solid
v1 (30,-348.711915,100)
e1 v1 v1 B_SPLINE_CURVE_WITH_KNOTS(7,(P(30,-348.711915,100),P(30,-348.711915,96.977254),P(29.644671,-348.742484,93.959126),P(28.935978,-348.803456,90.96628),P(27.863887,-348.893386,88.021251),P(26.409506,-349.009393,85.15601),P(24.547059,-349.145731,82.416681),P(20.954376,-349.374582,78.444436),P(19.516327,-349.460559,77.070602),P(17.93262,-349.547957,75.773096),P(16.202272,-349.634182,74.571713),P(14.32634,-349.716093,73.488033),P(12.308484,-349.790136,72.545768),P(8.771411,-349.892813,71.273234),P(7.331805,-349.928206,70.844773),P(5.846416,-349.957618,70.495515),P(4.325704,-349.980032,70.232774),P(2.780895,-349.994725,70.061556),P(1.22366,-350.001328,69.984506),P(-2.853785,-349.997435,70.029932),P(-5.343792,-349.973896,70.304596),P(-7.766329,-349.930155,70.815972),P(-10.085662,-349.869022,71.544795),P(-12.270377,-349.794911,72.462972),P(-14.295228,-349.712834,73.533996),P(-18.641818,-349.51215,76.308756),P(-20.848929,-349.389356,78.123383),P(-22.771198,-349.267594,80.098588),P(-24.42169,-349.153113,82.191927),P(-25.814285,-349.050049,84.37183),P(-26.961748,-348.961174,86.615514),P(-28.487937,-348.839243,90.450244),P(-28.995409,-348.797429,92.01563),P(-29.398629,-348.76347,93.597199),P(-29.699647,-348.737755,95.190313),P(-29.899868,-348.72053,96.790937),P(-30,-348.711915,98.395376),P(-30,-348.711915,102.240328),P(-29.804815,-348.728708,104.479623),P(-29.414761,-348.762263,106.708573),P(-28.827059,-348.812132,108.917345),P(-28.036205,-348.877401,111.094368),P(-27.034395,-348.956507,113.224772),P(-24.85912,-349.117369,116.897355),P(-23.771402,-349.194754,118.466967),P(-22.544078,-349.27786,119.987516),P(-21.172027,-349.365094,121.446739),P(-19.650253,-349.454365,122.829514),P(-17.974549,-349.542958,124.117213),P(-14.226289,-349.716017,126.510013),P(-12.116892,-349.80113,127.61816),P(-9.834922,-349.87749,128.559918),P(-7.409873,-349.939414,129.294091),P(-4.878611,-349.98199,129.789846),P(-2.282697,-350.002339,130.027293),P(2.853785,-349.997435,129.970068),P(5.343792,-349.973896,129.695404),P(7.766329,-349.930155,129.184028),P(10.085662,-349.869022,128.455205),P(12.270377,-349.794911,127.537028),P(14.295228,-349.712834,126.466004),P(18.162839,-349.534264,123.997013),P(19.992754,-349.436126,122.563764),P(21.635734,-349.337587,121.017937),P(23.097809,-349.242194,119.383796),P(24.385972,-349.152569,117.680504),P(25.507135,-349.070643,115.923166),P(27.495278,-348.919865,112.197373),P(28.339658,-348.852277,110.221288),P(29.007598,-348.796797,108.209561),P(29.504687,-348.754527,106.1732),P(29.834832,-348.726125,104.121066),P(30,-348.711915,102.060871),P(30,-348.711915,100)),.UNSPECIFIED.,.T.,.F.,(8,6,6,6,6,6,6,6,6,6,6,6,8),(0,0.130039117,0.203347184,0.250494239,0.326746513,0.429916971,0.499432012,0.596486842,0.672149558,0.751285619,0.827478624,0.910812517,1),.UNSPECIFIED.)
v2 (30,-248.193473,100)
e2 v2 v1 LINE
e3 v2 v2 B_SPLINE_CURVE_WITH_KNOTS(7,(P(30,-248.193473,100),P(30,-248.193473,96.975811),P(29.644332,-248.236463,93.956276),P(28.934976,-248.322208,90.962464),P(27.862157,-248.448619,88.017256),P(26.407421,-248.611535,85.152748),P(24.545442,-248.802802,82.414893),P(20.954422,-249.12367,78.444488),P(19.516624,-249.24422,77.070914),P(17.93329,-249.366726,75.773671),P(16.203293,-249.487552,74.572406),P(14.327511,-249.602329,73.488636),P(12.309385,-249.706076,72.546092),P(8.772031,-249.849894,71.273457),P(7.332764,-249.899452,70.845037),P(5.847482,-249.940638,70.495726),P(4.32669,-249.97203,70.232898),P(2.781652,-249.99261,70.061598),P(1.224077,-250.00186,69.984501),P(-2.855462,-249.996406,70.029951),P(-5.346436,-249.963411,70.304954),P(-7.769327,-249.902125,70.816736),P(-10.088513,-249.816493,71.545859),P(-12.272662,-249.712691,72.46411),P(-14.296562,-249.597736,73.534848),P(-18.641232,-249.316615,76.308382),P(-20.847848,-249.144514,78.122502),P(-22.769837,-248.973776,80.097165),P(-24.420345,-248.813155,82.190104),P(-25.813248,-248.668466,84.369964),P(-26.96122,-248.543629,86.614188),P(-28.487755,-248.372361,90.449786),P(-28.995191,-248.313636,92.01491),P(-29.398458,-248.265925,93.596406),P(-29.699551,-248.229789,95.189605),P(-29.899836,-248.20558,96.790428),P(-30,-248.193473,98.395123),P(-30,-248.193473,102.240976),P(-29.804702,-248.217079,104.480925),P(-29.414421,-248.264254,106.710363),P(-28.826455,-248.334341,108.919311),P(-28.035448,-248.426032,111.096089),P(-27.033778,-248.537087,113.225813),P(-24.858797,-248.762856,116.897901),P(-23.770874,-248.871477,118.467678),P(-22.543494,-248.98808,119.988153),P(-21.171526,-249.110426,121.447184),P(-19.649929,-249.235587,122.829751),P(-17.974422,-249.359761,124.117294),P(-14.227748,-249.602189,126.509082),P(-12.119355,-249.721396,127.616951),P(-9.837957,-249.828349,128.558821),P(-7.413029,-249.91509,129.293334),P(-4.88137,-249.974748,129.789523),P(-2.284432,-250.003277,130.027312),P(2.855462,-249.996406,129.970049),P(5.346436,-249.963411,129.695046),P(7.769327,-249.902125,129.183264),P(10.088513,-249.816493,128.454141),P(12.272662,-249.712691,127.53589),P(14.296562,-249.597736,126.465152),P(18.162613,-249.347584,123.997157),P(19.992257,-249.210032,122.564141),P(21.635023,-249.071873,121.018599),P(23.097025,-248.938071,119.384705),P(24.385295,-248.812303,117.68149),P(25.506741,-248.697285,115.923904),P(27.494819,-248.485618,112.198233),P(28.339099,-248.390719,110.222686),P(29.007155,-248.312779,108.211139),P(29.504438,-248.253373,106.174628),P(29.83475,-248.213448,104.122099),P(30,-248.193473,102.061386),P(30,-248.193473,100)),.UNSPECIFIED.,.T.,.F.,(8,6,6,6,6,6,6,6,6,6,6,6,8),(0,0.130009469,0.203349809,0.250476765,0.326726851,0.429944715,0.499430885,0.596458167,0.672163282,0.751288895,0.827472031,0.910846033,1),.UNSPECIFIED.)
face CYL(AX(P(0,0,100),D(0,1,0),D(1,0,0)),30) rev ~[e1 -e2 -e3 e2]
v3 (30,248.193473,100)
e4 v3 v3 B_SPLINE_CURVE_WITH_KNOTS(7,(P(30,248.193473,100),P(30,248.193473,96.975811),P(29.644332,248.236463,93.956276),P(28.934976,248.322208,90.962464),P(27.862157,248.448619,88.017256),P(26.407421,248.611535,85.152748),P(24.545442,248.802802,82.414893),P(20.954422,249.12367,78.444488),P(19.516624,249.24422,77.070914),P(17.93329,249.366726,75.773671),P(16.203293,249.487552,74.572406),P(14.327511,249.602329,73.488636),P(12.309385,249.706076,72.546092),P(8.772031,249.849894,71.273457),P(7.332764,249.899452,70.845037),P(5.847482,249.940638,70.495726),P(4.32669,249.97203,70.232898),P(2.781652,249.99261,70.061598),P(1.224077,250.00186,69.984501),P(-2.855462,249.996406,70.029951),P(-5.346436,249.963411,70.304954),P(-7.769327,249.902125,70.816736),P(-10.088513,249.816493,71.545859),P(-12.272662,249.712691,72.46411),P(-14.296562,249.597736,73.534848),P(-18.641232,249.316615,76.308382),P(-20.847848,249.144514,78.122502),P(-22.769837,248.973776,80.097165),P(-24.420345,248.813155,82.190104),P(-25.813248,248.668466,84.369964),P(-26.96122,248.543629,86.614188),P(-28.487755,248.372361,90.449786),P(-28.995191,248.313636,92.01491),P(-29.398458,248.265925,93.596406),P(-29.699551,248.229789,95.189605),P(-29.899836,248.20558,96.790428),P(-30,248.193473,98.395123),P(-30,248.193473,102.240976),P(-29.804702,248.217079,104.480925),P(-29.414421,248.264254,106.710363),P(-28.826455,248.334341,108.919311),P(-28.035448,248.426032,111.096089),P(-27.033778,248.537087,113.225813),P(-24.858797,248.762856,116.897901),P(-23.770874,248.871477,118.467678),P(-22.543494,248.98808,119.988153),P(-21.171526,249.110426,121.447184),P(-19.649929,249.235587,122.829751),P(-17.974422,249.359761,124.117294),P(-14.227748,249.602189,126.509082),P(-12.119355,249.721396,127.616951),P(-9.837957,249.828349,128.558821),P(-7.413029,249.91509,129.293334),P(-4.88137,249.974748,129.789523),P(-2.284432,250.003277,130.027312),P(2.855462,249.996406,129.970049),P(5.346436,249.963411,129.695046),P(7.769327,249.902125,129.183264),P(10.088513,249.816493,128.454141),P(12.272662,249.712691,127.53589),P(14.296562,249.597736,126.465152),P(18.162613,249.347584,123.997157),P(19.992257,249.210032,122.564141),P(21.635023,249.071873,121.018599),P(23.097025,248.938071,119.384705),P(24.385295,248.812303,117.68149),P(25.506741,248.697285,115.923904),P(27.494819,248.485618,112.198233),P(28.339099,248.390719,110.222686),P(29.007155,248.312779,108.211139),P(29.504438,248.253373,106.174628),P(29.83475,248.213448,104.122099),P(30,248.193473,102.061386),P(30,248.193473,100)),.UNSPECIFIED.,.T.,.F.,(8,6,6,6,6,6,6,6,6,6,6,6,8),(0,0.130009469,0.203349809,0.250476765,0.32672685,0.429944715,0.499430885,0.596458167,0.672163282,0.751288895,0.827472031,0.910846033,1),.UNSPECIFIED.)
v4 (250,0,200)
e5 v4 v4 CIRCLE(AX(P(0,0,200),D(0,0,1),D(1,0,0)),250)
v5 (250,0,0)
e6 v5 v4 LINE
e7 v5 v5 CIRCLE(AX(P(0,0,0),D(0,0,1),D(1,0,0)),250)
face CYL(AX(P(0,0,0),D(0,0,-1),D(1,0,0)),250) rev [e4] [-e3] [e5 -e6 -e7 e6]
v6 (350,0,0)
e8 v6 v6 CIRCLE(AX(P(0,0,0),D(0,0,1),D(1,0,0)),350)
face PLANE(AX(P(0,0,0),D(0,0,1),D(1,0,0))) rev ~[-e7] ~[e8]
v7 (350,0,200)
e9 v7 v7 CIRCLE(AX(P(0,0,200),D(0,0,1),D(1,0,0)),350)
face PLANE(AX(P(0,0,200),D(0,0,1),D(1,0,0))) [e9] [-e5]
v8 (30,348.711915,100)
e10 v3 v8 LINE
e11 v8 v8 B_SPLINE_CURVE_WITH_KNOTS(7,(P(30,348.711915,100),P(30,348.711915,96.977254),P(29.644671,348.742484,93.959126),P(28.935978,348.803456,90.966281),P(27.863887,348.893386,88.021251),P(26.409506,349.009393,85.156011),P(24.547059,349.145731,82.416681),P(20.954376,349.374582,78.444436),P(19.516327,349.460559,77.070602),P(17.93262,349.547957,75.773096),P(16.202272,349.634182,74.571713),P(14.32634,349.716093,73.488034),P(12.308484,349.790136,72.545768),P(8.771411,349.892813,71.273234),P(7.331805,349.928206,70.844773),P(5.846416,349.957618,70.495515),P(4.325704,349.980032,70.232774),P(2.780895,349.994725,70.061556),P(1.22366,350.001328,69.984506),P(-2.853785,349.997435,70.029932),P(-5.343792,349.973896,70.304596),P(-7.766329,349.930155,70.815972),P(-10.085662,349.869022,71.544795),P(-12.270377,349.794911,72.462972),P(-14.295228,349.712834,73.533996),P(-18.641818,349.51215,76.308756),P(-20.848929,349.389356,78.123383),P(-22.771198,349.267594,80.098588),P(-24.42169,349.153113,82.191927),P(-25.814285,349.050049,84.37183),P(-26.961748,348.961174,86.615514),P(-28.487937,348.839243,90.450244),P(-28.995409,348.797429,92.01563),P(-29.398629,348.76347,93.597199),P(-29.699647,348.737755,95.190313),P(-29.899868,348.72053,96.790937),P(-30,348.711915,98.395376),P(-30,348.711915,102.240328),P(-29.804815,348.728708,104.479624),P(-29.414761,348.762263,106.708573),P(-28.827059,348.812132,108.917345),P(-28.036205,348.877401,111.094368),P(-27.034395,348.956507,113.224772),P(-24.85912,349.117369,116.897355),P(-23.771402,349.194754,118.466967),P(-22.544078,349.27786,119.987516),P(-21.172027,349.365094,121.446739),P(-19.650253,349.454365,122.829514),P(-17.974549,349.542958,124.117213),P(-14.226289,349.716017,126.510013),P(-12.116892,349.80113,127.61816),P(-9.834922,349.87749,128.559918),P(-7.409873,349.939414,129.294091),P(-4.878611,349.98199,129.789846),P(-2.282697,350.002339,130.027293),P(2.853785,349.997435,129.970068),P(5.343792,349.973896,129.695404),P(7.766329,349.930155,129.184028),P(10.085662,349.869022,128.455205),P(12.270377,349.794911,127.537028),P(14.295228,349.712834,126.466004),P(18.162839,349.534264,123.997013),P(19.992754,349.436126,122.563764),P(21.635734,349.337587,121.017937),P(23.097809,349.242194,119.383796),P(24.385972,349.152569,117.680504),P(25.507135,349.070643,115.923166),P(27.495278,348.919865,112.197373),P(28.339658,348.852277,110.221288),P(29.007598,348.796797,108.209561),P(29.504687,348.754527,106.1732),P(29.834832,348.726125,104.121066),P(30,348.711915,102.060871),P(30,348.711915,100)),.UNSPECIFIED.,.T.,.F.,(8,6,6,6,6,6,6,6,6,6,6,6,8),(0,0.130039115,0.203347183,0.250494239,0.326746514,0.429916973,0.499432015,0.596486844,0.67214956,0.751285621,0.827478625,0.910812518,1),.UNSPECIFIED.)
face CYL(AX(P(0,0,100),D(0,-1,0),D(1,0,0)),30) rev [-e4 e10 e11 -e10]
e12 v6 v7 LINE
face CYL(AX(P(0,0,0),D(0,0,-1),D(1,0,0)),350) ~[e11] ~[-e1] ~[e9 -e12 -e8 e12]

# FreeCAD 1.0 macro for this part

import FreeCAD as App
import Part
import Sketcher

V = App.Vector

doc = App.newDocument("Part")
body = doc.addObject("PartDesign::Body", "Body")

sketch1 = doc.addObject("Sketcher::SketchObject", "Sketch")
body.addObject(sketch1)
sketch1.AttachmentSupport = (doc.XY_Plane, [""])
sketch1.MapMode = "FlatFace"
sketch1.addGeometry([
    Part.Circle(V(0, 0, 0), V(0, 0, 1), 350),
    Part.Circle(V(0, 0, 0), V(0, 0, 1), 250),
], False)
sketch1.addConstraint([
    Sketcher.Constraint("Coincident", 0, 3, -1, 1),
    Sketcher.Constraint("Coincident", 1, 3, -1, 1),
    Sketcher.Constraint("Diameter", 0, 700.0),
    Sketcher.Constraint("Diameter", 1, 500.0),
])
pad1 = doc.addObject("PartDesign::Pad", "Pad")
body.addObject(pad1)
pad1.Profile = sketch1
pad1.Length = 200

sketch2 = doc.addObject("Sketcher::SketchObject", "Sketch001")
body.addObject(sketch2)
sketch2.AttachmentSupport = (doc.XZ_Plane, [""])
sketch2.MapMode = "FlatFace"
sketch2.addGeometry(Part.Circle(V(0, 100, 0), V(0, 0, 1), 30), False)
sketch2.addConstraint([
    Sketcher.Constraint("PointOnObject", 0, 3, -2),
    Sketcher.Constraint("Diameter", 0, 60.0),
    Sketcher.Constraint("DistanceY", -1, 1, 0, 3, 100.0),
])
pocket1 = doc.addObject("PartDesign::Pocket", "Pocket")
body.addObject(pocket1)
pocket1.Profile = sketch2
pocket1.Type = "ThroughAll"
pocket1.Midplane = True

doc.recompute()
